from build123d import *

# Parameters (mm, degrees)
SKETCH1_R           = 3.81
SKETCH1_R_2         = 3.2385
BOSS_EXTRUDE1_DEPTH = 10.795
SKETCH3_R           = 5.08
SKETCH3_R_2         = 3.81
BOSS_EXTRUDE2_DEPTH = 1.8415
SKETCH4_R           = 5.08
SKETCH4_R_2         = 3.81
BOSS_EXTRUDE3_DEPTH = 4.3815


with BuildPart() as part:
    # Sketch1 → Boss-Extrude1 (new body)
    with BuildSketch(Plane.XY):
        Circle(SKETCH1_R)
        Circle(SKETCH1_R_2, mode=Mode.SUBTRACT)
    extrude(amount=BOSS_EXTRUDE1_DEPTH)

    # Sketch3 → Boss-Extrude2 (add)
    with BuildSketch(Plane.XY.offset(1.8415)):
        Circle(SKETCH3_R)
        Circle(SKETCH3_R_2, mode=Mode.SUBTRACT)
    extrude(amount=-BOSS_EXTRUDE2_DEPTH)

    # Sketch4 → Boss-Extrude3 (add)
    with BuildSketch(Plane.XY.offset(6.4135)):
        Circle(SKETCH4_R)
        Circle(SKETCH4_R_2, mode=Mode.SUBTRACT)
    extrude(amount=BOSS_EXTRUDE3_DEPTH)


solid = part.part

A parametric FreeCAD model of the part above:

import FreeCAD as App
import Part
import Sketcher
from FreeCAD import Vector
Q = App.Units.Quantity

doc = App.newDocument("Part")
body = doc.addObject("PartDesign::Body", "Body")

sketch1 = doc.addObject("Sketcher::SketchObject", "Sketch")
body.addObject(sketch1)
sketch1.AttachmentSupport = (doc.XY_Plane, [""])
sketch1.MapMode = "FlatFace"
sketch1.addGeometry([
    Part.Circle(Vector(0, 0, 0), Vector(0, 0, 1), 3.8),
    Part.Circle(Vector(0, 0, 0), Vector(0, 0, 1), 3.2),
], False)
sketch1.addConstraint([
    Sketcher.Constraint("Coincident", 0, 3, -1, 1),
    Sketcher.Constraint("Coincident", 1, 3, -1, 1),
    Sketcher.Constraint("Diameter", 0, Q("0.3 in")),
    Sketcher.Constraint("Diameter", 1, Q("0.255 in")),
])
pad1 = doc.addObject("PartDesign::Pad", "Pad")
body.addObject(pad1)
pad1.Profile = sketch1
pad1.Length = Q("0.425 in")

sketch2 = doc.addObject("Sketcher::SketchObject", "Sketch001")
body.addObject(sketch2)
sketch2.AttachmentSupport = (doc.XY_Plane, [""])
sketch2.MapMode = "FlatFace"
sketch2.AttachmentOffset = App.Placement(Vector(0, 0, 0.0725 * 25.4), App.Rotation())
sketch2.addGeometry([
    Part.Circle(Vector(0, 0, 0), Vector(0, 0, 1), 5.1),
    Part.Circle(Vector(0, 0, 0), Vector(0, 0, 1), 3.8),
], False)
sketch2.addConstraint([
    Sketcher.Constraint("Coincident", 0, 3, -1, 1),
    Sketcher.Constraint("Coincident", 1, 3, -1, 1),
    Sketcher.Constraint("Diameter", 0, Q("0.4 in")),
    Sketcher.Constraint("Diameter", 1, Q("0.3 in")),
])
pad2 = doc.addObject("PartDesign::Pad", "Pad001")
body.addObject(pad2)
pad2.Profile = sketch2
pad2.Length = Q("0.0725 in")
pad2.Reversed = True

sketch3 = doc.addObject("Sketcher::SketchObject", "Sketch002")
body.addObject(sketch3)
sketch3.AttachmentSupport = (doc.XY_Plane, [""])
sketch3.MapMode = "FlatFace"
sketch3.AttachmentOffset = App.Placement(Vector(0, 0, 0.2525 * 25.4), App.Rotation())
sketch3.addGeometry([
    Part.Circle(Vector(0, 0, 0), Vector(0, 0, 1), 5.1),
    Part.Circle(Vector(0, 0, 0), Vector(0, 0, 1), 3.8),
], False)
sketch3.addConstraint([
    Sketcher.Constraint("Coincident", 0, 3, -1, 1),
    Sketcher.Constraint("Coincident", 1, 3, -1, 1),
    Sketcher.Constraint("Diameter", 0, Q("0.4 in")),
    Sketcher.Constraint("Diameter", 1, Q("0.3 in")),
])
pad3 = doc.addObject("PartDesign::Pad", "Pad002")
body.addObject(pad3)
pad3.Profile = sketch3
pad3.Length = Q("0.1725 in")

doc.recompute()
